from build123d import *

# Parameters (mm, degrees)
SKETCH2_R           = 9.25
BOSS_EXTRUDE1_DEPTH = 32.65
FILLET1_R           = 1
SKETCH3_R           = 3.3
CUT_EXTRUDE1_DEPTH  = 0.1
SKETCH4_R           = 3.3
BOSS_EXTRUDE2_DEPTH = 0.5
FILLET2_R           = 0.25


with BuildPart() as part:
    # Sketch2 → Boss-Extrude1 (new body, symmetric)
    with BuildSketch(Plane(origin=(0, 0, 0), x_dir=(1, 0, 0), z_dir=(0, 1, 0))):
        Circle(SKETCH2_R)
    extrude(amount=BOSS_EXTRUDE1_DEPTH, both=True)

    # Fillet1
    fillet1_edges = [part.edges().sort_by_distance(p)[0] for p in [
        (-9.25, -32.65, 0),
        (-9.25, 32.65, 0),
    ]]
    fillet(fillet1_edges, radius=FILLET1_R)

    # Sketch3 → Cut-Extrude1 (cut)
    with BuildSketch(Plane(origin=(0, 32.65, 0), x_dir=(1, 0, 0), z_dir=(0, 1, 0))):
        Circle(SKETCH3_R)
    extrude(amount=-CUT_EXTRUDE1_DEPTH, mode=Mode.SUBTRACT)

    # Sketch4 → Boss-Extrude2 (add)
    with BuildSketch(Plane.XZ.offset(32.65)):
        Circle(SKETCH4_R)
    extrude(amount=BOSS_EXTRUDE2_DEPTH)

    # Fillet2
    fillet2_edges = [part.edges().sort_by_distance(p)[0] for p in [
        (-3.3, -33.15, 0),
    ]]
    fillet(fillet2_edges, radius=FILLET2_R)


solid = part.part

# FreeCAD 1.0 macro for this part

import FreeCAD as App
import Part
import Sketcher
Q = App.Units.Quantity


def edges_at(feature, points):
    """Names of the edges that pass closest to the given points."""
    edges = feature.Shape.Edges
    near = lambda p: min(range(len(edges)), key=lambda i: edges[i].distToShape(Part.Vertex(*p))[0])
    return sorted({f"Edge{near(p) + 1}" for p in points})

doc = App.newDocument("Part")
body = doc.addObject("PartDesign::Body", "Body")

# Sketch on XZ plane
sketch1 = body.newObject("Sketcher::SketchObject", "Sketch")
sketch1.AttachmentSupport = (doc.getObject("XZ_Plane"), [""])
sketch1.MapMode = "FlatFace"
sketch1.addGeometry(Part.Circle(App.Vector(0, 0, 0), App.Vector(0, 0, 1), 9), False)
sketch1.addConstraint([
    Sketcher.Constraint("Coincident", 0, 3, -1, 1),
    Sketcher.Constraint("Diameter", 0, Q("18.5 mm")),
])
pad1 = body.newObject("PartDesign::Pad", "Pad")
pad1.Profile = sketch1
pad1.Length = 65.3
pad1.Midplane = True
doc.recompute()

fillet = body.newObject("PartDesign::Fillet", "Fillet")
fillet.Base = (pad1, edges_at(pad1, [(-9.25, -32.65, 0), (-9.25, 32.65, 0)]))
fillet.Radius = 1

# Sketch on XZ plane
sketch2 = body.newObject("Sketcher::SketchObject", "Sketch001")
sketch2.AttachmentSupport = (doc.getObject("XZ_Plane"), [""])
sketch2.MapMode = "FlatFace"
sketch2.AttachmentOffset = App.Placement(App.Vector(0, 0, -32.65), App.Rotation())
sketch2.addGeometry(Part.Circle(App.Vector(0, 0, 0), App.Vector(0, 0, 1), 3.3), False)
sketch2.addConstraint([
    Sketcher.Constraint("Coincident", 0, 3, -1, 1),
    Sketcher.Constraint("Diameter", 0, Q("6.6 mm")),
])
pocket1 = body.newObject("PartDesign::Pocket", "Pocket")
pocket1.Profile = sketch2
pocket1.Length = 0.1
pocket1.Reversed = True

# Sketch on XZ plane
sketch3 = body.newObject("Sketcher::SketchObject", "Sketch002")
sketch3.AttachmentSupport = (doc.getObject("XZ_Plane"), [""])
sketch3.MapMode = "FlatFace"
sketch3.AttachmentOffset = App.Placement(App.Vector(0, 0, 32.65), App.Rotation())
sketch3.addGeometry(Part.Circle(App.Vector(0, 0, 0), App.Vector(0, 0, 1), 3.3), False)
sketch3.addConstraint([
    Sketcher.Constraint("Coincident", 0, 3, -1, 1),
    Sketcher.Constraint("Diameter", 0, Q("6.6 mm")),
])
pad2 = body.newObject("PartDesign::Pad", "Pad001")
pad2.Profile = sketch3
pad2.Length = 0.5
doc.recompute()

fillet2 = body.newObject("PartDesign::Fillet", "Fillet001")
fillet2.Base = (pad2, edges_at(pad2, [(-3.3, -33.15, 0)]))
fillet2.Radius = 0.25

doc.recompute()
